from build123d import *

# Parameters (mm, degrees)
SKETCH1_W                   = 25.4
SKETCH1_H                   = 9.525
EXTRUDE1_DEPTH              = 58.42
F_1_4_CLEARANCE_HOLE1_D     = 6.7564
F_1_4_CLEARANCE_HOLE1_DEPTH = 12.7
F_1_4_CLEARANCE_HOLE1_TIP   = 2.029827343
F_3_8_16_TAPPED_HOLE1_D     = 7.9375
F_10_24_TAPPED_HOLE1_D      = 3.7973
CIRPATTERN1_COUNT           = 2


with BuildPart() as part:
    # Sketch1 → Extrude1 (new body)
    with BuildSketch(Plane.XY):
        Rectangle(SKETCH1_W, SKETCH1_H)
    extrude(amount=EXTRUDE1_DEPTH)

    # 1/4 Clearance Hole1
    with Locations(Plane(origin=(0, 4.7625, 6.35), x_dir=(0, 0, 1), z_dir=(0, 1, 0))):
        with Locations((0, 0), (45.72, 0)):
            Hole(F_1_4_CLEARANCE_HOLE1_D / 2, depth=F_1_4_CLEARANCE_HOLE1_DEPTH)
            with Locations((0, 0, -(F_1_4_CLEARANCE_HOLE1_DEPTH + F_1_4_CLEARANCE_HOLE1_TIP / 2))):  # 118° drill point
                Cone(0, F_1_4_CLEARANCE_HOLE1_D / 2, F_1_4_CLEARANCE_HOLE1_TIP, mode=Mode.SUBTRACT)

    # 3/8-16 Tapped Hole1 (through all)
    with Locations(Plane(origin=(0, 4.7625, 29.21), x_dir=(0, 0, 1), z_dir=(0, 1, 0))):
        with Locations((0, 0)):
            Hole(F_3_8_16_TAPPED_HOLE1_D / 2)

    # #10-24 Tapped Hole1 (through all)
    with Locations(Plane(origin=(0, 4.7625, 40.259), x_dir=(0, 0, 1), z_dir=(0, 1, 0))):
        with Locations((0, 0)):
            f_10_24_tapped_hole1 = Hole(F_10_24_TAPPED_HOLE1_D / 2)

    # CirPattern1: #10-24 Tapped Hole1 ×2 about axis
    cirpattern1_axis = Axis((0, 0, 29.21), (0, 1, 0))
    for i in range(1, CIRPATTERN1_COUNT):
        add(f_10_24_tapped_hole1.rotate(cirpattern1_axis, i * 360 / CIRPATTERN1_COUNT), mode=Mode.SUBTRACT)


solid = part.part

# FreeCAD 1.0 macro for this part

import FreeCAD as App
import Part
import Sketcher
Q = App.Units.Quantity

doc = App.newDocument("Part")
body = doc.addObject("PartDesign::Body", "Body")

sketch1 = body.newObject("Sketcher::SketchObject", "Sketch")
sketch1.AttachmentSupport = (doc.getObject("XY_Plane"), [""])
sketch1.MapMode = "FlatFace"
sketch1.addGeometry([
    Part.LineSegment(App.Vector(-13, 5, 0), App.Vector(-13, -5, 0)),
    Part.LineSegment(App.Vector(-13, -5, 0), App.Vector(13, -5, 0)),
    Part.LineSegment(App.Vector(13, -5, 0), App.Vector(13, 5, 0)),
    Part.LineSegment(App.Vector(13, 5, 0), App.Vector(-13, 5, 0)),
], False)
sketch1.addConstraint([
    Sketcher.Constraint("Coincident", 0, 2, 1, 1),
    Sketcher.Constraint("Coincident", 1, 2, 2, 1),
    Sketcher.Constraint("Coincident", 2, 2, 3, 1),
    Sketcher.Constraint("Coincident", 3, 2, 0, 1),
    Sketcher.Constraint("Vertical", 0),
    Sketcher.Constraint("Horizontal", 1),
    Sketcher.Constraint("Vertical", 2),
    Sketcher.Constraint("Horizontal", 3),
    Sketcher.Constraint("Symmetric", 0, 2, 2, 2, -1, 1),
    Sketcher.Constraint("DistanceX", 1, 1, 1, 2, Q("1 in")),
    Sketcher.Constraint("DistanceY", 0, 2, 0, 1, Q("0.375 in")),
])
pad1 = body.newObject("PartDesign::Pad", "Pad")
pad1.Profile = sketch1
pad1.Length = Q("2.3 in")

sketch2 = body.newObject("Sketcher::SketchObject", "Sketch001")
sketch2.AttachmentSupport = (doc.getObject("XZ_Plane"), [""])
sketch2.MapMode = "FlatFace"
sketch2.AttachmentOffset = App.Placement(App.Vector(0, 0, -0.1875 * 25.4), App.Rotation())
sketch2.addGeometry([
    Part.Circle(App.Vector(0, 6.3, 0), App.Vector(0, 0, 1), 3.4),
    Part.Circle(App.Vector(0, 52.1, 0), App.Vector(0, 0, 1), 3.4),
], False)
sketch2.addConstraint([
    Sketcher.Constraint("Equal", 0, 1),
    Sketcher.Constraint("PointOnObject", 0, 3, -2),
    Sketcher.Constraint("PointOnObject", 1, 3, -2),
    Sketcher.Constraint("Diameter", 0, Q("0.266 in")),
    Sketcher.Constraint("DistanceY", 0, 3, 1, 3, Q("1.8 in")),
    Sketcher.Constraint("DistanceY", -1, 1, 0, 3, Q("0.25 in")),
])
doc.recompute()
hole = body.newObject("PartDesign::Hole", "Hole")
hole.Profile = sketch2
hole.ThreadType = "None"
hole.Diameter = Q("0.266 in")
hole.DepthType = "Dimension"
hole.Depth = Q("0.5 in")
hole.DrillPoint = "Angled"
hole.DrillPointAngle = 118
hole.Reversed = True

sketch3 = body.newObject("Sketcher::SketchObject", "Sketch002")
sketch3.AttachmentSupport = (doc.getObject("XZ_Plane"), [""])
sketch3.MapMode = "FlatFace"
sketch3.AttachmentOffset = App.Placement(App.Vector(0, 0, -0.1875 * 25.4), App.Rotation())
sketch3.addGeometry(Part.Circle(App.Vector(0, 29.2, 0), App.Vector(0, 0, 1), 4), False)
sketch3.addConstraint([
    Sketcher.Constraint("PointOnObject", 0, 3, -2),
    Sketcher.Constraint("Diameter", 0, Q("0.3125 in")),
    Sketcher.Constraint("DistanceY", -1, 1, 0, 3, Q("1.15 in")),
])
doc.recompute()
hole2 = body.newObject("PartDesign::Hole", "Hole001")
hole2.Profile = sketch3
hole2.ThreadType = "None"
hole2.Diameter = Q("0.3125 in")
hole2.DepthType = "ThroughAll"
hole2.Reversed = True

sketch4 = body.newObject("Sketcher::SketchObject", "Sketch003")
sketch4.AttachmentSupport = (doc.getObject("XZ_Plane"), [""])
sketch4.MapMode = "FlatFace"
sketch4.AttachmentOffset = App.Placement(App.Vector(0, 0, -0.1875 * 25.4), App.Rotation())
sketch4.addGeometry(Part.Circle(App.Vector(0, 40.3, 0), App.Vector(0, 0, 1), 1.9), False)
sketch4.addConstraint([
    Sketcher.Constraint("PointOnObject", 0, 3, -2),
    Sketcher.Constraint("Diameter", 0, Q("0.1495 in")),
    Sketcher.Constraint("DistanceY", -1, 1, 0, 3, Q("1.585 in")),
])
doc.recompute()
hole3 = body.newObject("PartDesign::Hole", "Hole002")
hole3.Profile = sketch4
hole3.ThreadType = "None"
hole3.Diameter = Q("0.1495 in")
hole3.DepthType = "ThroughAll"
hole3.Reversed = True
doc.recompute()

datumline = body.newObject("PartDesign::Line", "DatumLine")
datumline.Placement = App.Placement(App.Vector(0, 0, 29.21), App.Rotation(App.Vector(0, 0, 1), App.Vector(0, 1, 0)))
polarpattern = body.newObject("PartDesign::PolarPattern", "PolarPattern")
polarpattern.Originals = [hole3]
polarpattern.Axis = (datumline, [""])
polarpattern.Angle = 360
polarpattern.Occurrences = 2
body.Tip = polarpattern

doc.recompute()
